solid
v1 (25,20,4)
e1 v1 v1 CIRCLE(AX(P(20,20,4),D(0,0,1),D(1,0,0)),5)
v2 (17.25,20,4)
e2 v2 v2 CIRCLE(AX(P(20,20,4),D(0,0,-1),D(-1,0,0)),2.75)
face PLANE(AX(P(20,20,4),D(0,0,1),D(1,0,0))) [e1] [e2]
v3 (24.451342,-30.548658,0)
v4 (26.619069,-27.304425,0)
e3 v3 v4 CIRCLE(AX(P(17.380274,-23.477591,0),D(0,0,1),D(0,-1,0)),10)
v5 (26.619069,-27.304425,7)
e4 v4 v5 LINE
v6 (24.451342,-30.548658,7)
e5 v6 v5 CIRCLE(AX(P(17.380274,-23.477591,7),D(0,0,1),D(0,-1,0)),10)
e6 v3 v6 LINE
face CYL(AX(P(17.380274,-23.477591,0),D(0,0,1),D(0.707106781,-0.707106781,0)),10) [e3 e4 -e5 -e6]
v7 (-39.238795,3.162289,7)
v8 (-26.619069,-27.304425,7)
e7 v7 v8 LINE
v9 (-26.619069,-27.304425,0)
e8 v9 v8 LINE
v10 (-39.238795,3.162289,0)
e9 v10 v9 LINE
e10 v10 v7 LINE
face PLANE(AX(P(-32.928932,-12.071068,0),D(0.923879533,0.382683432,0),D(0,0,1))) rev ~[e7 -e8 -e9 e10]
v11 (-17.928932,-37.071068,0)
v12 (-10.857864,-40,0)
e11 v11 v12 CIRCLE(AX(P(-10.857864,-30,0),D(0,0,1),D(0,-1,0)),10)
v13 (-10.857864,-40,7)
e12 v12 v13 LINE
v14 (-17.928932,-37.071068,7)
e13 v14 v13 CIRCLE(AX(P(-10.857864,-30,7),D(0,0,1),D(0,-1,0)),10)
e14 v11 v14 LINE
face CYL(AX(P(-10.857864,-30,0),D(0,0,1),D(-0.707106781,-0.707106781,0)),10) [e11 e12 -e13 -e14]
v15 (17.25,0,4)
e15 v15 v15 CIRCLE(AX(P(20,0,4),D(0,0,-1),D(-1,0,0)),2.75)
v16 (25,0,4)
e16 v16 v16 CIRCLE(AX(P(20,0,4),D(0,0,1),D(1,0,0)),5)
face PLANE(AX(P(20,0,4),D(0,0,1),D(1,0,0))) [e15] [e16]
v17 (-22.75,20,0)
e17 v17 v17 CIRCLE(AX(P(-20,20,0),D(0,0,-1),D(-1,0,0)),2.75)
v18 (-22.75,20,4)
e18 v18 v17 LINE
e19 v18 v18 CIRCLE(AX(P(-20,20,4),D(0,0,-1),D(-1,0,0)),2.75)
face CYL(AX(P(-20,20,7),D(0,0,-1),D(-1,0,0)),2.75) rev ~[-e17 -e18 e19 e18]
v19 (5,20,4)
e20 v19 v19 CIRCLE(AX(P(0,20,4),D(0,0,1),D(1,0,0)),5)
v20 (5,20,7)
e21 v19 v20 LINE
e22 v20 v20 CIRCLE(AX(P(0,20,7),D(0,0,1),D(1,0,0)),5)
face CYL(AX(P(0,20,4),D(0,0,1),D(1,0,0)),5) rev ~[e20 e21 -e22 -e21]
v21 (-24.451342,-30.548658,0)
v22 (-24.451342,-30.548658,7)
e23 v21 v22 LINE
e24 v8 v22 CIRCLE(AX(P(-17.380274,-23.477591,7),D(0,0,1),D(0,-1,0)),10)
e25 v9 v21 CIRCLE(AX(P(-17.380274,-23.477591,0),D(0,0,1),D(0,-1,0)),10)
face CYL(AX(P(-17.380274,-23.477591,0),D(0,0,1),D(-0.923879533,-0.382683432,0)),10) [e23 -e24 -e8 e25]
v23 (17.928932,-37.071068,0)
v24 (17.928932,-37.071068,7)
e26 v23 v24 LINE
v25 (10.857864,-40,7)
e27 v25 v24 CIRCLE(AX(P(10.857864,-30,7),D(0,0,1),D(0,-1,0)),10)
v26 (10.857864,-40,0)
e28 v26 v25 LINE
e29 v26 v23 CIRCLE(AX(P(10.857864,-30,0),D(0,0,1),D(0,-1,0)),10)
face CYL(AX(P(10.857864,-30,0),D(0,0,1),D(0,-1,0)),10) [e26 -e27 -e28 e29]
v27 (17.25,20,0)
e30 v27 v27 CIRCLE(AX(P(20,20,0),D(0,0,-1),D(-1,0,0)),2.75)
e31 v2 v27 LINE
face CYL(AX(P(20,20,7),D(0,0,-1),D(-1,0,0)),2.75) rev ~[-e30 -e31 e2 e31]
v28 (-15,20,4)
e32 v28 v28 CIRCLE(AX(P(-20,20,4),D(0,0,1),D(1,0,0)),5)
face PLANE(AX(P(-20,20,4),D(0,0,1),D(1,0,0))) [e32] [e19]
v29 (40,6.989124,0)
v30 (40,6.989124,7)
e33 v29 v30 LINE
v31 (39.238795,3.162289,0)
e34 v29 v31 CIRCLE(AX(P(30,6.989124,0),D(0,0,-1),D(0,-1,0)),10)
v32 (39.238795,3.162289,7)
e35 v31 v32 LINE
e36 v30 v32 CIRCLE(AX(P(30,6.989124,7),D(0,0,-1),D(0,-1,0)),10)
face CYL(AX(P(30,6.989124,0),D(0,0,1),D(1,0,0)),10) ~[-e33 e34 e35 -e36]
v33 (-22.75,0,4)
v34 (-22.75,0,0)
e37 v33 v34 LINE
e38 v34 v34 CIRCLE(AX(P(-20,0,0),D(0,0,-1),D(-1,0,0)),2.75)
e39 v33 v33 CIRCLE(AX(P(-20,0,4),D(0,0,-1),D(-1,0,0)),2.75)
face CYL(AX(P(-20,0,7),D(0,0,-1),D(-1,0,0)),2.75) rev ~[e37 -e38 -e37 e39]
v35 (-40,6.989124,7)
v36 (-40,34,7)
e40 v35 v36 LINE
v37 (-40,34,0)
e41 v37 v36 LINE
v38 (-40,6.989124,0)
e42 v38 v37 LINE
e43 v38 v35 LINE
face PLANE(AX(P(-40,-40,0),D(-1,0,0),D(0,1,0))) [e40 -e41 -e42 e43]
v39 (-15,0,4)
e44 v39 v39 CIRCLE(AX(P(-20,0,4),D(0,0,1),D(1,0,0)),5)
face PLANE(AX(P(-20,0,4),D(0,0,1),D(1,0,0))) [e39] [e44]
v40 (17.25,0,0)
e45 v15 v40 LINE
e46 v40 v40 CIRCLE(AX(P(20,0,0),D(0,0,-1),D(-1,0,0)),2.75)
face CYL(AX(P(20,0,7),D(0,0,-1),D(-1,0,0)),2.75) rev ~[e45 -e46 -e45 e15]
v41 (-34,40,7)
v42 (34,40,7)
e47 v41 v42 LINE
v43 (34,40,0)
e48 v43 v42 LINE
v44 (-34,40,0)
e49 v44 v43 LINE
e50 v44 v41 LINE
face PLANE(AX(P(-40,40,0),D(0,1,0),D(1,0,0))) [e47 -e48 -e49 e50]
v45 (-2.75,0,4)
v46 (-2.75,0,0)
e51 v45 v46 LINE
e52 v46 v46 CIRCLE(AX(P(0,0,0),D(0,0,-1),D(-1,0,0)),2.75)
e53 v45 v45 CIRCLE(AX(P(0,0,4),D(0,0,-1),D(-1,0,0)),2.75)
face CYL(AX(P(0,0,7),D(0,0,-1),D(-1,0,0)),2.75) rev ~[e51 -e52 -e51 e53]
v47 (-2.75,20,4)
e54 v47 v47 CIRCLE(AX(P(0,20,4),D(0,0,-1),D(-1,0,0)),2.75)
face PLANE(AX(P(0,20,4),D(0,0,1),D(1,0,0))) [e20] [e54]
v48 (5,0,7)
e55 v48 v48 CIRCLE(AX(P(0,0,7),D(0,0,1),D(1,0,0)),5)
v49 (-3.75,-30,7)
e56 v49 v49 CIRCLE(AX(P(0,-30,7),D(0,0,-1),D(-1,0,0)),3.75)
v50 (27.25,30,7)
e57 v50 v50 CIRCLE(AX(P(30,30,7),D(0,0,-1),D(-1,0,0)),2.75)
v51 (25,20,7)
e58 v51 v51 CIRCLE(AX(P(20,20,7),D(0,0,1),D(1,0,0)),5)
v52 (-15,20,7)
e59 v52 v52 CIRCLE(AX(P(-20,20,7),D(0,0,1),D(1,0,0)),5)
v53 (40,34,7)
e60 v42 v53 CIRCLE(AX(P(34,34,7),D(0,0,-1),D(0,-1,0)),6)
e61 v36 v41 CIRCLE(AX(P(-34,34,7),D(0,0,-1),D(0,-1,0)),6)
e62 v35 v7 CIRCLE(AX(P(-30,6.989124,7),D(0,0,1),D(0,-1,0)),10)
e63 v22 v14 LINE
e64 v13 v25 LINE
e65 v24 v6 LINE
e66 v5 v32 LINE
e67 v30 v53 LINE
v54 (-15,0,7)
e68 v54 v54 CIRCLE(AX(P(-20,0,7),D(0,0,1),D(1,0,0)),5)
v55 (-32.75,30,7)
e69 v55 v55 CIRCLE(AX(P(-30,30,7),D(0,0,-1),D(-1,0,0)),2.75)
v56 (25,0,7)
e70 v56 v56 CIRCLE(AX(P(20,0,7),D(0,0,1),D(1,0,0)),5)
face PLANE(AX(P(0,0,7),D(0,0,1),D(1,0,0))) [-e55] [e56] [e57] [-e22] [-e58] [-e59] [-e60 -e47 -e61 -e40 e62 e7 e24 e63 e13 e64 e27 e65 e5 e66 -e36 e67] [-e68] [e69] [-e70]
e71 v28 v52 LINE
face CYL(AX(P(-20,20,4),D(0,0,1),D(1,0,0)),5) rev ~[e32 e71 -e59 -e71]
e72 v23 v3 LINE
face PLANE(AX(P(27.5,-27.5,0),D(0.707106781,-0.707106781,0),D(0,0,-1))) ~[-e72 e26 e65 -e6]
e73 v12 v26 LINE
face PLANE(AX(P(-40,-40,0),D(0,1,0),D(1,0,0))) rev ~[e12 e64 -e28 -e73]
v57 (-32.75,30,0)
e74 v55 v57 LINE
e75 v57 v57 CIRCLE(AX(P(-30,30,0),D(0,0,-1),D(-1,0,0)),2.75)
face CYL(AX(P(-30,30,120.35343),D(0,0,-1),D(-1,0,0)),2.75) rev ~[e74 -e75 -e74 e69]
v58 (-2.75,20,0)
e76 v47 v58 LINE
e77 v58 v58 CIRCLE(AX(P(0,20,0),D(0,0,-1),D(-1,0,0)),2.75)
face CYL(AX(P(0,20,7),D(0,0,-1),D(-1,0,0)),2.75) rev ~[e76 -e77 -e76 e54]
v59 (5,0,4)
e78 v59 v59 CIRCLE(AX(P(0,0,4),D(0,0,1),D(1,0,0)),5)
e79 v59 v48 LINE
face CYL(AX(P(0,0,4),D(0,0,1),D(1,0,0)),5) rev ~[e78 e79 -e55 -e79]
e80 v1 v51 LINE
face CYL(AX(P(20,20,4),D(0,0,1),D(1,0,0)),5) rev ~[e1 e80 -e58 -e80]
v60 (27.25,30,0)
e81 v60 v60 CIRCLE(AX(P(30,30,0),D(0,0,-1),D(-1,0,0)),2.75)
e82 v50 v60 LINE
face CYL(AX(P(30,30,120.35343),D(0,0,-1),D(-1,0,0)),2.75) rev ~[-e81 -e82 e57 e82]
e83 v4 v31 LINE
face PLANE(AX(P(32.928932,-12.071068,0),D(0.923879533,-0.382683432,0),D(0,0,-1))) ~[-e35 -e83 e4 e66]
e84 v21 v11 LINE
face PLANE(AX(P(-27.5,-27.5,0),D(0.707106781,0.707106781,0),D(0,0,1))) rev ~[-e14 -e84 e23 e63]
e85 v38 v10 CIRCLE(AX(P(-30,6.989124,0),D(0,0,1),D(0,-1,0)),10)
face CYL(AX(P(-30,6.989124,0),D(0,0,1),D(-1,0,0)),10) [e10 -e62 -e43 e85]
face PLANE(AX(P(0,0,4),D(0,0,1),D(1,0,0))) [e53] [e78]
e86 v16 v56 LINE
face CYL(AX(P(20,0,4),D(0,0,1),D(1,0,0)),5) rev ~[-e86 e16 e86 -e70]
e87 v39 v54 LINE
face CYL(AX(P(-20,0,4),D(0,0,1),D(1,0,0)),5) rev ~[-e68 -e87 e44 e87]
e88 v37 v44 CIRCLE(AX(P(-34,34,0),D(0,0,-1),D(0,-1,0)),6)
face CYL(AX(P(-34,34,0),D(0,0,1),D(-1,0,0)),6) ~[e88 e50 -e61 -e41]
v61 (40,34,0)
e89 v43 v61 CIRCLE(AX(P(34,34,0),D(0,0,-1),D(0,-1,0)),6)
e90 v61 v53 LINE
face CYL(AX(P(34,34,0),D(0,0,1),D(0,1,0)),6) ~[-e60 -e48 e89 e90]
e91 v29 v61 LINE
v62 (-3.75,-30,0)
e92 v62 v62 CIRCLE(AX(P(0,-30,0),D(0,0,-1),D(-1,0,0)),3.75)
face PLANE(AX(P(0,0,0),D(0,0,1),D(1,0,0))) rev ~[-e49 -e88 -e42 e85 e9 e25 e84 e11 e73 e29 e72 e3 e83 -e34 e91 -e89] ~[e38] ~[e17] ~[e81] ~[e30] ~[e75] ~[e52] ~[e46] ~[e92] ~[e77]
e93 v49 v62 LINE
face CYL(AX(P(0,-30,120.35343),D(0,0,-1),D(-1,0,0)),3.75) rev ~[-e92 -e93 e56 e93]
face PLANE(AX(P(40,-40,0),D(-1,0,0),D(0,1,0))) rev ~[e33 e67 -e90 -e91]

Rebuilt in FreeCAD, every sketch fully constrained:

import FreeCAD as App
import Part
import Sketcher

V = App.Vector


def edges_at(feature, points):
    """Names of the edges that pass closest to the given points."""
    edges = feature.Shape.Edges
    near = lambda p: min(range(len(edges)), key=lambda i: edges[i].distToShape(Part.Vertex(*p))[0])
    return sorted({f"Edge{near(p) + 1}" for p in points})

doc = App.newDocument("Part")
params = doc.addObject("Spreadsheet::Sheet", "Params")
for row, (alias, value) in enumerate([
    ("sketch1_width", "80 mm"),
    ("pad1_length", "7 mm"),
    ("sketch2_diameter", "7.5 mm"),
    ("hole_diameter", "7.5 mm"),
    ("fillet_radius", "6 mm"),
    ("chamfer_size", "25 mm"),
    ("chamfer2_size", "20 mm"),
    ("sketch3_diameter", "5.5 mm"),
    ("hole2_diameter", "5.5 mm"),
    ("hole2_cbore_diameter", "10 mm"),
    ("hole2_cbore_depth", "3 mm"),
    ("fillet2_radius", "10 mm"),
    ("sketch4_diameter", "5.5 mm"),
    ("hole3_diameter", "5.5 mm"),
], start=1):
    params.set(f"A{row}", alias)
    params.set(f"B{row}", "=" + value)
    params.setAlias(f"B{row}", alias)

body = doc.addObject("PartDesign::Body", "Body")

# Sketch on XY plane
sketch1 = body.newObject("Sketcher::SketchObject", "Sketch")
sketch1.AttachmentSupport = (doc.getObject("XY_Plane"), [""])
sketch1.MapMode = "FlatFace"
sketch1.addGeometry(Part.LineSegment(V(-40, 40, 0), V(-40, -40, 0)), False)
sketch1.addGeometry(Part.LineSegment(V(-40, -40, 0), V(40, -40, 0)), False)
sketch1.addGeometry(Part.LineSegment(V(40, -40, 0), V(40, 40, 0)), False)
sketch1.addGeometry(Part.LineSegment(V(40, 40, 0), V(-40, 40, 0)), False)
sketch1.addConstraint(Sketcher.Constraint("Coincident", 0, 2, 1, 1))
sketch1.addConstraint(Sketcher.Constraint("Coincident", 1, 2, 2, 1))
sketch1.addConstraint(Sketcher.Constraint("Coincident", 2, 2, 3, 1))
sketch1.addConstraint(Sketcher.Constraint("Coincident", 3, 2, 0, 1))
sketch1.addConstraint(Sketcher.Constraint("Vertical", 0))
sketch1.addConstraint(Sketcher.Constraint("Horizontal", 1))
sketch1.addConstraint(Sketcher.Constraint("Vertical", 2))
sketch1.addConstraint(Sketcher.Constraint("Horizontal", 3))
sketch1.addConstraint(Sketcher.Constraint("Symmetric", 0, 2, 2, 2, -1, 1))
sketch1.addConstraint(Sketcher.Constraint("Equal", 3, 0))
sketch1.addConstraint(Sketcher.Constraint("DistanceX", 1, 1, 1, 2, 80.0))
sketch1.setExpression("Constraints[10]", "Params.sketch1_width")
pad1 = body.newObject("PartDesign::Pad", "Pad")
pad1.Profile = sketch1
pad1.setExpression("Length", "Params.pad1_length")

# Sketch on XY plane
sketch2 = body.newObject("Sketcher::SketchObject", "Sketch001")
sketch2.AttachmentSupport = (doc.getObject("XY_Plane"), [""])
sketch2.MapMode = "FlatFace"
sketch2.AttachmentOffset = App.Placement(V(0, 0, 7), App.Rotation())
sketch2.addGeometry(Part.Circle(V(0, -30, 0), V(0, 0, 1), 3.8), False)
sketch2.addConstraint(Sketcher.Constraint("PointOnObject", 0, 3, -2))
sketch2.addConstraint(Sketcher.Constraint("Diameter", 0, 7.5))
sketch2.addConstraint(Sketcher.Constraint("DistanceY", 0, 3, -1, 1, 30.0))
sketch2.setExpression("Constraints[1]", "Params.sketch2_diameter")
doc.recompute()
hole = body.newObject("PartDesign::Hole", "Hole")
hole.Profile = sketch2
hole.ThreadType = "None"
hole.setExpression("Diameter", "Params.hole_diameter")
hole.DepthType = "ThroughAll"
doc.recompute()

fillet = body.newObject("PartDesign::Fillet", "Fillet")
fillet.Base = (hole, edges_at(hole, [(-40, 40, 3.5), (40, 40, 3.5)]))
fillet.setExpression("Radius", "Params.fillet_radius")
doc.recompute()

chamfer = body.newObject("PartDesign::Chamfer", "Chamfer")
chamfer.Base = (fillet, edges_at(fillet, [(-40, -40, 3.5), (40, -40, 3.5)]))
chamfer.setExpression("Size", "Params.chamfer_size")
doc.recompute()

chamfer2 = body.newObject("PartDesign::Chamfer", "Chamfer001")
chamfer2.Base = (chamfer, edges_at(chamfer, [(40, -15, 3.5), (-40, -15, 3.5)]))
chamfer2.setExpression("Size", "Params.chamfer2_size")

# Sketch on XY plane
sketch3 = body.newObject("Sketcher::SketchObject", "Sketch002")
sketch3.AttachmentSupport = (doc.getObject("XY_Plane"), [""])
sketch3.MapMode = "FlatFace"
sketch3.AttachmentOffset = App.Placement(V(0, 0, 7), App.Rotation())
sketch3.addGeometry(Part.Circle(V(-20, 20, 0), V(0, 0, 1), 2.8), False)
sketch3.addGeometry(Part.Circle(V(0, 20, 0), V(0, 0, 1), 2.8), False)
sketch3.addGeometry(Part.Circle(V(20, 20, 0), V(0, 0, 1), 2.8), False)
sketch3.addGeometry(Part.Circle(V(20, 0, 0), V(0, 0, 1), 2.8), False)
sketch3.addGeometry(Part.Circle(V(0, 0, 0), V(0, 0, 1), 2.8), False)
sketch3.addGeometry(Part.Circle(V(-20, 0, 0), V(0, 0, 1), 2.8), False)
sketch3.addConstraint(Sketcher.Constraint("Coincident", 4, 3, -1, 1))
sketch3.addConstraint(Sketcher.Constraint("Equal", 0, 1))
sketch3.addConstraint(Sketcher.Constraint("Equal", 1, 2))
sketch3.addConstraint(Sketcher.Constraint("Equal", 2, 3))
sketch3.addConstraint(Sketcher.Constraint("Equal", 3, 4))
sketch3.addConstraint(Sketcher.Constraint("Equal", 4, 5))
sketch3.addConstraint(Sketcher.Constraint("Symmetric", 3, 3, 5, 3, -1, 1))
sketch3.addConstraint(Sketcher.Constraint("Symmetric", 0, 3, 2, 3, -2))
sketch3.addConstraint(Sketcher.Constraint("PointOnObject", 1, 3, -2))
sketch3.addConstraint(Sketcher.Constraint("PointOnObject", 3, 3, -1))
sketch3.addConstraint(Sketcher.Constraint("Horizontal", 0, 3, 1, 3))
sketch3.addConstraint(Sketcher.Constraint("Vertical", 2, 3, 3, 3))
sketch3.addConstraint(Sketcher.Constraint("Diameter", 0, 5.5))
sketch3.addConstraint(Sketcher.Constraint("DistanceX", 0, 3, -1, 1, 20.0))
sketch3.addConstraint(Sketcher.Constraint("DistanceY", -1, 1, 0, 3, 20.0))
sketch3.setExpression("Constraints[12]", "Params.sketch3_diameter")
doc.recompute()
hole2 = body.newObject("PartDesign::Hole", "Hole001")
hole2.Profile = sketch3
hole2.ThreadType = "None"
hole2.setExpression("Diameter", "Params.hole2_diameter")
hole2.DepthType = "ThroughAll"
hole2.HoleCutType = "Counterbore"
hole2.setExpression("HoleCutDiameter", "Params.hole2_cbore_diameter")
hole2.setExpression("HoleCutDepth", "Params.hole2_cbore_depth")
doc.recompute()

fillet2 = body.newObject("PartDesign::Fillet", "Fillet001")
fillet2.Base = (hole2, edges_at(hole2, [
    (40, 5, 3.5),
    (25.858, -29.142, 3.5),
    (15, -40, 3.5),
    (-15, -40, 3.5),
    (-40, 5, 3.5),
    (-25.858, -29.142, 3.5),
]))
fillet2.setExpression("Radius", "Params.fillet2_radius")

# Sketch on XY plane
sketch4 = body.newObject("Sketcher::SketchObject", "Sketch003")
sketch4.AttachmentSupport = (doc.getObject("XY_Plane"), [""])
sketch4.MapMode = "FlatFace"
sketch4.AttachmentOffset = App.Placement(V(0, 0, 7), App.Rotation())
sketch4.addGeometry(Part.Circle(V(-30, 30, 0), V(0, 0, 1), 2.8), False)
sketch4.addGeometry(Part.Circle(V(30, 30, 0), V(0, 0, 1), 2.8), False)
sketch4.addConstraint(Sketcher.Constraint("Equal", 0, 1))
sketch4.addConstraint(Sketcher.Constraint("Symmetric", 0, 3, 1, 3, -2))
sketch4.addConstraint(Sketcher.Constraint("Diameter", 0, 5.5))
sketch4.addConstraint(Sketcher.Constraint("DistanceX", 0, 3, -1, 1, 30.0))
sketch4.addConstraint(Sketcher.Constraint("DistanceY", -1, 1, 0, 3, 30.0))
sketch4.setExpression("Constraints[2]", "Params.sketch4_diameter")
doc.recompute()
hole3 = body.newObject("PartDesign::Hole", "Hole002")
hole3.Profile = sketch4
hole3.ThreadType = "None"
hole3.setExpression("Diameter", "Params.hole3_diameter")
hole3.DepthType = "ThroughAll"

doc.recompute()
